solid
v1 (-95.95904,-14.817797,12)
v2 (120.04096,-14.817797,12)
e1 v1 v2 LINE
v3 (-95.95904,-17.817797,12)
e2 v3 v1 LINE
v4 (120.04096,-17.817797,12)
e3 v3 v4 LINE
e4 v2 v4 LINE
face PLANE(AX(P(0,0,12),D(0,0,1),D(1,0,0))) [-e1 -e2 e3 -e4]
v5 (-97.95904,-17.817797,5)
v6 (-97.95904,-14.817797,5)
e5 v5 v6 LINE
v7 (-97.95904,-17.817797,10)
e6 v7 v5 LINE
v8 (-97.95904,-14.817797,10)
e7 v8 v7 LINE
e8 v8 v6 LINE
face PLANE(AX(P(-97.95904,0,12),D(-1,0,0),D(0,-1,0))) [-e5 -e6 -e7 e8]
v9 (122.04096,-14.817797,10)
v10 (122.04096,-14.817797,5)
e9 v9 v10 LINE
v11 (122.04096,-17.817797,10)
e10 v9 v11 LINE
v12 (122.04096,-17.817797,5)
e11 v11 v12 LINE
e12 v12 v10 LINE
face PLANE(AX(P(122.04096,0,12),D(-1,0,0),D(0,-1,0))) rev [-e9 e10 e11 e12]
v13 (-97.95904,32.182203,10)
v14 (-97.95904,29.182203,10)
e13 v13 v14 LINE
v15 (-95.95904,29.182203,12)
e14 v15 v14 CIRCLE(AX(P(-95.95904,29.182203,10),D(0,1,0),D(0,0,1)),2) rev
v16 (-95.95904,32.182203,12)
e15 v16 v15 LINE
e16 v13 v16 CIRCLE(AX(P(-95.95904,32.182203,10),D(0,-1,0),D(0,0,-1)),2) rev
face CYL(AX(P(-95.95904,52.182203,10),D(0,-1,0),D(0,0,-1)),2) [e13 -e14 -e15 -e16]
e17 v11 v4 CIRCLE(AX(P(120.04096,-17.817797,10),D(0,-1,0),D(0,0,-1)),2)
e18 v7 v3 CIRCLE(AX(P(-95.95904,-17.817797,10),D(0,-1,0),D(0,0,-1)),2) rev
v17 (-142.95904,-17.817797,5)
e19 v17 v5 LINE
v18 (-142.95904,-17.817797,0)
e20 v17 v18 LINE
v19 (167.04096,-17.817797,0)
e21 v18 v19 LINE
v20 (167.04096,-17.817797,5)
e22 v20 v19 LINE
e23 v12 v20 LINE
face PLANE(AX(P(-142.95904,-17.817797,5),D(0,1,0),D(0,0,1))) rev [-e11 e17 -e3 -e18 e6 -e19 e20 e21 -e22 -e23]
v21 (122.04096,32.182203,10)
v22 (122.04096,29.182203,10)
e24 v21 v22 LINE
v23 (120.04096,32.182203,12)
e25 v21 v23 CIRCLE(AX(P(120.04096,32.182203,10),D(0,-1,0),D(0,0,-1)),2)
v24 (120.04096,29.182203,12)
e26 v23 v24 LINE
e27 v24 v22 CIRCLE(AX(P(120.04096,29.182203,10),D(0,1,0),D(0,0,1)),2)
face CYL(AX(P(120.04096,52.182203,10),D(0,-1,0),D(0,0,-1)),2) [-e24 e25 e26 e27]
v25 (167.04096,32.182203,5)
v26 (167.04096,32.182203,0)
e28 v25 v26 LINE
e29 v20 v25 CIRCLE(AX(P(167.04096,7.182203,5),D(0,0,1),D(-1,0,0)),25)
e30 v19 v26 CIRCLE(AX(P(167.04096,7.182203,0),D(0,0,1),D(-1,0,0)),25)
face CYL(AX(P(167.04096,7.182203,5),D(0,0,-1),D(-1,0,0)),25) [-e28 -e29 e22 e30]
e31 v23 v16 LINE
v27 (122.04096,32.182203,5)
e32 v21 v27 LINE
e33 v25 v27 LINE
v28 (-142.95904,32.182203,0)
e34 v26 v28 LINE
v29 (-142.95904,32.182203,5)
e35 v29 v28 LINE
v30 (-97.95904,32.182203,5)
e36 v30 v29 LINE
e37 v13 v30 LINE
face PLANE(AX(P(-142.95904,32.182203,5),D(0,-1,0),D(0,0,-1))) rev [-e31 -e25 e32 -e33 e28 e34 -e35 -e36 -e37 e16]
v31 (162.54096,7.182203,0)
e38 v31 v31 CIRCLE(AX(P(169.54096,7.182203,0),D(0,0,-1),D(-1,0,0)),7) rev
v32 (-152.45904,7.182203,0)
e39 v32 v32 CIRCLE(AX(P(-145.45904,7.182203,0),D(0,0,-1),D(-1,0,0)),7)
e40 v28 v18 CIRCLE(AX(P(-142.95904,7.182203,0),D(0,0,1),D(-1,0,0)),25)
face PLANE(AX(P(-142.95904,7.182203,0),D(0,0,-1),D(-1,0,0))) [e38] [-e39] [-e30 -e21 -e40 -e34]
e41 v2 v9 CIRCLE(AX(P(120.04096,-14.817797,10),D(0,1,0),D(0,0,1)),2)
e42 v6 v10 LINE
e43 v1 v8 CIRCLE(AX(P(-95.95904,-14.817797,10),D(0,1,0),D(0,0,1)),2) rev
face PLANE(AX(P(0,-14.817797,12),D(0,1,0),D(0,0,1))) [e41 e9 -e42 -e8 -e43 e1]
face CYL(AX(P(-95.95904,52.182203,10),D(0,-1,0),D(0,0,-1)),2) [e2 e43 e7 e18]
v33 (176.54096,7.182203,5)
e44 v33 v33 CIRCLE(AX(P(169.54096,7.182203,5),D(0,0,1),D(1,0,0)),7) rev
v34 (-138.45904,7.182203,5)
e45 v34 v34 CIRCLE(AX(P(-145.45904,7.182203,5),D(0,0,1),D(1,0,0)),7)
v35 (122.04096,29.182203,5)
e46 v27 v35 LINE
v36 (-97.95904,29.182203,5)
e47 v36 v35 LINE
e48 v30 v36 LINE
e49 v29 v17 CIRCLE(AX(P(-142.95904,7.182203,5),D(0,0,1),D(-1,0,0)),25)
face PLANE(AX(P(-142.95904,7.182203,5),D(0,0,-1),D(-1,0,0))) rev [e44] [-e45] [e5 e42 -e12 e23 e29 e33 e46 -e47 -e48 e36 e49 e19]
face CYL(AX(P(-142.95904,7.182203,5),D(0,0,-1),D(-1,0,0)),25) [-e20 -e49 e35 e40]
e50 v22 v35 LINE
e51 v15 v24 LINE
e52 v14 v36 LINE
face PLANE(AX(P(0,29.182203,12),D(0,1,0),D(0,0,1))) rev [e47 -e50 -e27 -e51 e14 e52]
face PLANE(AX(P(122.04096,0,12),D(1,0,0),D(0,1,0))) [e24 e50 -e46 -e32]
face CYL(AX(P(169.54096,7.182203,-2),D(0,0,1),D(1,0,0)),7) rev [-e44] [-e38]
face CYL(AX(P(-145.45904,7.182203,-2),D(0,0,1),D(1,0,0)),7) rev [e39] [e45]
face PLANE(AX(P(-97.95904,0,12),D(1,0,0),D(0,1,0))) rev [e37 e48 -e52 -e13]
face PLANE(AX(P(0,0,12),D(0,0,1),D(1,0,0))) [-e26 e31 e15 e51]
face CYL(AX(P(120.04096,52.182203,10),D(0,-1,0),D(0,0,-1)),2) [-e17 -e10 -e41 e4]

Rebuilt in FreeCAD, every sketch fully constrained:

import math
import FreeCAD as App
import Part
import Sketcher

doc = App.newDocument("Part")
params = doc.addObject("Spreadsheet::Sheet", "Params")
for row, (alias, value) in enumerate([
    ("sketch1_radius", "25 mm"),
    ("sketch1_width", "310 mm"),
    ("pad1_length", "5 mm"),
    ("sketch2_width", "220 mm"),
    ("sketch2_height", "3 mm"),
    ("pad2_length", "7 mm"),
    ("sketch3_diameter", "14 mm"),
    ("pocket1_length", "7 mm"),
    ("sketch4_radius", "2 mm"),
    ("pocket2_length", "70 mm"),
], start=1):
    params.set(f"A{row}", alias)
    params.set(f"B{row}", "=" + value)
    params.setAlias(f"B{row}", alias)

body = doc.addObject("PartDesign::Body", "Body")

# Sketch on XY plane
sketch1 = body.newObject("Sketcher::SketchObject", "Sketch")
sketch1.AttachmentSupport = (doc.getObject("XY_Plane"), [""])
sketch1.MapMode = "FlatFace"
sketch1.addGeometry([
    Part.LineSegment(App.Vector(167.04096, 32.182203, 0), App.Vector(-142.95904, 32.182203, 0)),
    Part.ArcOfCircle(Part.Circle(App.Vector(-142.95904, 7.182203, 0), App.Vector(0, 0, 1), 25), math.radians(90), math.radians(270)),
    Part.LineSegment(App.Vector(-142.95904, -17.817797, 0), App.Vector(167.04096, -17.817797, 0)),
    Part.ArcOfCircle(Part.Circle(App.Vector(167.04096, 7.182203, 0), App.Vector(0, 0, 1), 25), math.radians(-90), math.radians(90)),
], False)
sketch1.addConstraint([
    Sketcher.Constraint("Tangent", 0, 2, 1, 1),
    Sketcher.Constraint("Tangent", 1, 2, 2, 1),
    Sketcher.Constraint("Tangent", 2, 2, 3, 1),
    Sketcher.Constraint("Tangent", 3, 2, 0, 1),
    Sketcher.Constraint("Horizontal", 0),
    Sketcher.Constraint("Horizontal", 2),
    Sketcher.Constraint("Radius", 1, 25.0),
    Sketcher.Constraint("DistanceX", 0, 2, 0, 1, 310.0),
    Sketcher.Constraint("DistanceX", 1, 3, -1, 1, 142.95904),
    Sketcher.Constraint("DistanceY", -1, 1, 1, 3, 7.182203),
])
sketch1.setExpression("Constraints[6]", "Params.sketch1_radius")
sketch1.setExpression("Constraints[7]", "Params.sketch1_width")
pad1 = body.newObject("PartDesign::Pad", "Pad")
pad1.Profile = sketch1
pad1.setExpression("Length", "Params.pad1_length")

# Sketch on XY plane
sketch2 = body.newObject("Sketcher::SketchObject", "Sketch001")
sketch2.AttachmentSupport = (doc.getObject("XY_Plane"), [""])
sketch2.MapMode = "FlatFace"
sketch2.AttachmentOffset = App.Placement(App.Vector(0, 0, 5), App.Rotation())
sketch2.addGeometry([
    Part.LineSegment(App.Vector(-97.95904, 32.182203, 0), App.Vector(-97.95904, 29.182203, 0)),  # 0
    Part.LineSegment(App.Vector(-97.95904, 29.182203, 0), App.Vector(122.04096, 29.182203, 0)),  # 1
    Part.LineSegment(App.Vector(122.04096, 29.182203, 0), App.Vector(122.04096, 32.182203, 0)),  # 2
    Part.LineSegment(App.Vector(122.04096, 32.182203, 0), App.Vector(-97.95904, 32.182203, 0)),  # 3
    Part.LineSegment(App.Vector(-97.95904, -14.817797, 0), App.Vector(-97.95904, -17.817797, 0)),  # 4
    Part.LineSegment(App.Vector(-97.95904, -17.817797, 0), App.Vector(122.04096, -17.817797, 0)),  # 5
    Part.LineSegment(App.Vector(122.04096, -17.817797, 0), App.Vector(122.04096, -14.817797, 0)),  # 6
    Part.LineSegment(App.Vector(122.04096, -14.817797, 0), App.Vector(-97.95904, -14.817797, 0)),  # 7
], False)
sketch2.addConstraint([
    Sketcher.Constraint("Coincident", 0, 2, 1, 1),
    Sketcher.Constraint("Coincident", 1, 2, 2, 1),
    Sketcher.Constraint("Coincident", 2, 2, 3, 1),
    Sketcher.Constraint("Coincident", 3, 2, 0, 1),
    Sketcher.Constraint("Coincident", 4, 2, 5, 1),
    Sketcher.Constraint("Coincident", 5, 2, 6, 1),
    Sketcher.Constraint("Coincident", 6, 2, 7, 1),
    Sketcher.Constraint("Coincident", 7, 2, 4, 1),
    Sketcher.Constraint("Vertical", 0),
    Sketcher.Constraint("Horizontal", 1),
    Sketcher.Constraint("Vertical", 2),
    Sketcher.Constraint("Horizontal", 3),
    Sketcher.Constraint("Vertical", 4),
    Sketcher.Constraint("Horizontal", 5),
    Sketcher.Constraint("Vertical", 6),
    Sketcher.Constraint("Horizontal", 7),
    Sketcher.Constraint("Vertical", 3, 2, 4, 2),
    Sketcher.Constraint("Vertical", 2, 2, 5, 2),
    Sketcher.Constraint("Equal", 2, 4),
    Sketcher.Constraint("DistanceX", 1, 1, 1, 2, 220.0),
    Sketcher.Constraint("DistanceY", 0, 2, 0, 1, 3.0),
    Sketcher.Constraint("DistanceY", 4, 2, 0, 2, 47.0),
    Sketcher.Constraint("DistanceX", 0, 2, -1, 1, 97.95904),
    Sketcher.Constraint("DistanceY", -1, 1, 0, 2, 29.182203),
])
sketch2.setExpression("Constraints[19]", "Params.sketch2_width")
sketch2.setExpression("Constraints[20]", "Params.sketch2_height")
pad2 = body.newObject("PartDesign::Pad", "Pad001")
pad2.Profile = sketch2
pad2.setExpression("Length", "Params.pad2_length")

# Sketch on XY plane
sketch3 = body.newObject("Sketcher::SketchObject", "Sketch002")
sketch3.AttachmentSupport = (doc.getObject("XY_Plane"), [""])
sketch3.MapMode = "FlatFace"
sketch3.AttachmentOffset = App.Placement(App.Vector(0, 0, 5), App.Rotation())
sketch3.addGeometry([
    Part.Circle(App.Vector(-145.45904, 7.182203, 0), App.Vector(0, 0, 1), 7),
    Part.Circle(App.Vector(169.54096, 7.182203, 0), App.Vector(0, 0, 1), 7),
], False)
sketch3.addConstraint([
    Sketcher.Constraint("Equal", 0, 1),
    Sketcher.Constraint("Horizontal", 0, 3, 1, 3),
    Sketcher.Constraint("Diameter", 0, 14.0),
    Sketcher.Constraint("DistanceX", 0, 3, 1, 3, 315.0),
    Sketcher.Constraint("DistanceX", 0, 3, -1, 1, 145.45904),
    Sketcher.Constraint("DistanceY", -1, 1, 0, 3, 7.182203),
])
sketch3.setExpression("Constraints[2]", "Params.sketch3_diameter")
pocket1 = body.newObject("PartDesign::Pocket", "Pocket")
pocket1.Profile = sketch3
pocket1.setExpression("Length", "Params.pocket1_length")

# Sketch on XZ plane
sketch4 = body.newObject("Sketcher::SketchObject", "Sketch003")
sketch4.AttachmentSupport = (doc.getObject("XZ_Plane"), [""])
sketch4.MapMode = "FlatFace"
sketch4.AttachmentOffset = App.Placement(App.Vector(0, 0, 17.817797), App.Rotation())
sketch4.addGeometry([
    Part.ArcOfCircle(Part.Circle(App.Vector(-95.95904, 10, 0), App.Vector(0, 0, 1), 2), math.radians(90), math.radians(180)),  # 0
    Part.LineSegment(App.Vector(-95.95904, 12, 0), App.Vector(-97.95904, 12, 0)),  # 1
    Part.LineSegment(App.Vector(-97.95904, 12, 0), App.Vector(-97.95904, 10, 0)),  # 2
    Part.LineSegment(App.Vector(122.04096, 12, 0), App.Vector(120.04096, 12, 0)),  # 3
    Part.ArcOfCircle(Part.Circle(App.Vector(120.04096, 10, 0), App.Vector(0, 0, 1), 2), math.radians(0), math.radians(90)),  # 4
    Part.LineSegment(App.Vector(122.04096, 10, 0), App.Vector(122.04096, 12, 0)),  # 5
], False)
sketch4.addConstraint([
    Sketcher.Constraint("Tangent", 0, 1, 1, 1),
    Sketcher.Constraint("Coincident", 1, 2, 2, 1),
    Sketcher.Constraint("Tangent", 2, 2, 0, 2),
    Sketcher.Constraint("Tangent", 3, 2, 4, 2),
    Sketcher.Constraint("Tangent", 4, 1, 5, 1),
    Sketcher.Constraint("Coincident", 5, 2, 3, 1),
    Sketcher.Constraint("Horizontal", 1),
    Sketcher.Constraint("Vertical", 2),
    Sketcher.Constraint("Horizontal", 3),
    Sketcher.Constraint("Vertical", 5),
    Sketcher.Constraint("Equal", 0, 4),
    Sketcher.Constraint("Horizontal", 0, 3, 4, 3),
    Sketcher.Constraint("Radius", 0, 2.0),
    Sketcher.Constraint("DistanceY", -1, 1, 0, 3, 10.0),
    Sketcher.Constraint("DistanceX", 0, 3, 4, 3, 216.0),
    Sketcher.Constraint("DistanceX", 0, 3, -1, 1, 95.95904),
])
sketch4.setExpression("Constraints[12]", "Params.sketch4_radius")
pocket2 = body.newObject("PartDesign::Pocket", "Pocket001")
pocket2.Profile = sketch4
pocket2.setExpression("Length", "Params.pocket2_length")

doc.recompute()
